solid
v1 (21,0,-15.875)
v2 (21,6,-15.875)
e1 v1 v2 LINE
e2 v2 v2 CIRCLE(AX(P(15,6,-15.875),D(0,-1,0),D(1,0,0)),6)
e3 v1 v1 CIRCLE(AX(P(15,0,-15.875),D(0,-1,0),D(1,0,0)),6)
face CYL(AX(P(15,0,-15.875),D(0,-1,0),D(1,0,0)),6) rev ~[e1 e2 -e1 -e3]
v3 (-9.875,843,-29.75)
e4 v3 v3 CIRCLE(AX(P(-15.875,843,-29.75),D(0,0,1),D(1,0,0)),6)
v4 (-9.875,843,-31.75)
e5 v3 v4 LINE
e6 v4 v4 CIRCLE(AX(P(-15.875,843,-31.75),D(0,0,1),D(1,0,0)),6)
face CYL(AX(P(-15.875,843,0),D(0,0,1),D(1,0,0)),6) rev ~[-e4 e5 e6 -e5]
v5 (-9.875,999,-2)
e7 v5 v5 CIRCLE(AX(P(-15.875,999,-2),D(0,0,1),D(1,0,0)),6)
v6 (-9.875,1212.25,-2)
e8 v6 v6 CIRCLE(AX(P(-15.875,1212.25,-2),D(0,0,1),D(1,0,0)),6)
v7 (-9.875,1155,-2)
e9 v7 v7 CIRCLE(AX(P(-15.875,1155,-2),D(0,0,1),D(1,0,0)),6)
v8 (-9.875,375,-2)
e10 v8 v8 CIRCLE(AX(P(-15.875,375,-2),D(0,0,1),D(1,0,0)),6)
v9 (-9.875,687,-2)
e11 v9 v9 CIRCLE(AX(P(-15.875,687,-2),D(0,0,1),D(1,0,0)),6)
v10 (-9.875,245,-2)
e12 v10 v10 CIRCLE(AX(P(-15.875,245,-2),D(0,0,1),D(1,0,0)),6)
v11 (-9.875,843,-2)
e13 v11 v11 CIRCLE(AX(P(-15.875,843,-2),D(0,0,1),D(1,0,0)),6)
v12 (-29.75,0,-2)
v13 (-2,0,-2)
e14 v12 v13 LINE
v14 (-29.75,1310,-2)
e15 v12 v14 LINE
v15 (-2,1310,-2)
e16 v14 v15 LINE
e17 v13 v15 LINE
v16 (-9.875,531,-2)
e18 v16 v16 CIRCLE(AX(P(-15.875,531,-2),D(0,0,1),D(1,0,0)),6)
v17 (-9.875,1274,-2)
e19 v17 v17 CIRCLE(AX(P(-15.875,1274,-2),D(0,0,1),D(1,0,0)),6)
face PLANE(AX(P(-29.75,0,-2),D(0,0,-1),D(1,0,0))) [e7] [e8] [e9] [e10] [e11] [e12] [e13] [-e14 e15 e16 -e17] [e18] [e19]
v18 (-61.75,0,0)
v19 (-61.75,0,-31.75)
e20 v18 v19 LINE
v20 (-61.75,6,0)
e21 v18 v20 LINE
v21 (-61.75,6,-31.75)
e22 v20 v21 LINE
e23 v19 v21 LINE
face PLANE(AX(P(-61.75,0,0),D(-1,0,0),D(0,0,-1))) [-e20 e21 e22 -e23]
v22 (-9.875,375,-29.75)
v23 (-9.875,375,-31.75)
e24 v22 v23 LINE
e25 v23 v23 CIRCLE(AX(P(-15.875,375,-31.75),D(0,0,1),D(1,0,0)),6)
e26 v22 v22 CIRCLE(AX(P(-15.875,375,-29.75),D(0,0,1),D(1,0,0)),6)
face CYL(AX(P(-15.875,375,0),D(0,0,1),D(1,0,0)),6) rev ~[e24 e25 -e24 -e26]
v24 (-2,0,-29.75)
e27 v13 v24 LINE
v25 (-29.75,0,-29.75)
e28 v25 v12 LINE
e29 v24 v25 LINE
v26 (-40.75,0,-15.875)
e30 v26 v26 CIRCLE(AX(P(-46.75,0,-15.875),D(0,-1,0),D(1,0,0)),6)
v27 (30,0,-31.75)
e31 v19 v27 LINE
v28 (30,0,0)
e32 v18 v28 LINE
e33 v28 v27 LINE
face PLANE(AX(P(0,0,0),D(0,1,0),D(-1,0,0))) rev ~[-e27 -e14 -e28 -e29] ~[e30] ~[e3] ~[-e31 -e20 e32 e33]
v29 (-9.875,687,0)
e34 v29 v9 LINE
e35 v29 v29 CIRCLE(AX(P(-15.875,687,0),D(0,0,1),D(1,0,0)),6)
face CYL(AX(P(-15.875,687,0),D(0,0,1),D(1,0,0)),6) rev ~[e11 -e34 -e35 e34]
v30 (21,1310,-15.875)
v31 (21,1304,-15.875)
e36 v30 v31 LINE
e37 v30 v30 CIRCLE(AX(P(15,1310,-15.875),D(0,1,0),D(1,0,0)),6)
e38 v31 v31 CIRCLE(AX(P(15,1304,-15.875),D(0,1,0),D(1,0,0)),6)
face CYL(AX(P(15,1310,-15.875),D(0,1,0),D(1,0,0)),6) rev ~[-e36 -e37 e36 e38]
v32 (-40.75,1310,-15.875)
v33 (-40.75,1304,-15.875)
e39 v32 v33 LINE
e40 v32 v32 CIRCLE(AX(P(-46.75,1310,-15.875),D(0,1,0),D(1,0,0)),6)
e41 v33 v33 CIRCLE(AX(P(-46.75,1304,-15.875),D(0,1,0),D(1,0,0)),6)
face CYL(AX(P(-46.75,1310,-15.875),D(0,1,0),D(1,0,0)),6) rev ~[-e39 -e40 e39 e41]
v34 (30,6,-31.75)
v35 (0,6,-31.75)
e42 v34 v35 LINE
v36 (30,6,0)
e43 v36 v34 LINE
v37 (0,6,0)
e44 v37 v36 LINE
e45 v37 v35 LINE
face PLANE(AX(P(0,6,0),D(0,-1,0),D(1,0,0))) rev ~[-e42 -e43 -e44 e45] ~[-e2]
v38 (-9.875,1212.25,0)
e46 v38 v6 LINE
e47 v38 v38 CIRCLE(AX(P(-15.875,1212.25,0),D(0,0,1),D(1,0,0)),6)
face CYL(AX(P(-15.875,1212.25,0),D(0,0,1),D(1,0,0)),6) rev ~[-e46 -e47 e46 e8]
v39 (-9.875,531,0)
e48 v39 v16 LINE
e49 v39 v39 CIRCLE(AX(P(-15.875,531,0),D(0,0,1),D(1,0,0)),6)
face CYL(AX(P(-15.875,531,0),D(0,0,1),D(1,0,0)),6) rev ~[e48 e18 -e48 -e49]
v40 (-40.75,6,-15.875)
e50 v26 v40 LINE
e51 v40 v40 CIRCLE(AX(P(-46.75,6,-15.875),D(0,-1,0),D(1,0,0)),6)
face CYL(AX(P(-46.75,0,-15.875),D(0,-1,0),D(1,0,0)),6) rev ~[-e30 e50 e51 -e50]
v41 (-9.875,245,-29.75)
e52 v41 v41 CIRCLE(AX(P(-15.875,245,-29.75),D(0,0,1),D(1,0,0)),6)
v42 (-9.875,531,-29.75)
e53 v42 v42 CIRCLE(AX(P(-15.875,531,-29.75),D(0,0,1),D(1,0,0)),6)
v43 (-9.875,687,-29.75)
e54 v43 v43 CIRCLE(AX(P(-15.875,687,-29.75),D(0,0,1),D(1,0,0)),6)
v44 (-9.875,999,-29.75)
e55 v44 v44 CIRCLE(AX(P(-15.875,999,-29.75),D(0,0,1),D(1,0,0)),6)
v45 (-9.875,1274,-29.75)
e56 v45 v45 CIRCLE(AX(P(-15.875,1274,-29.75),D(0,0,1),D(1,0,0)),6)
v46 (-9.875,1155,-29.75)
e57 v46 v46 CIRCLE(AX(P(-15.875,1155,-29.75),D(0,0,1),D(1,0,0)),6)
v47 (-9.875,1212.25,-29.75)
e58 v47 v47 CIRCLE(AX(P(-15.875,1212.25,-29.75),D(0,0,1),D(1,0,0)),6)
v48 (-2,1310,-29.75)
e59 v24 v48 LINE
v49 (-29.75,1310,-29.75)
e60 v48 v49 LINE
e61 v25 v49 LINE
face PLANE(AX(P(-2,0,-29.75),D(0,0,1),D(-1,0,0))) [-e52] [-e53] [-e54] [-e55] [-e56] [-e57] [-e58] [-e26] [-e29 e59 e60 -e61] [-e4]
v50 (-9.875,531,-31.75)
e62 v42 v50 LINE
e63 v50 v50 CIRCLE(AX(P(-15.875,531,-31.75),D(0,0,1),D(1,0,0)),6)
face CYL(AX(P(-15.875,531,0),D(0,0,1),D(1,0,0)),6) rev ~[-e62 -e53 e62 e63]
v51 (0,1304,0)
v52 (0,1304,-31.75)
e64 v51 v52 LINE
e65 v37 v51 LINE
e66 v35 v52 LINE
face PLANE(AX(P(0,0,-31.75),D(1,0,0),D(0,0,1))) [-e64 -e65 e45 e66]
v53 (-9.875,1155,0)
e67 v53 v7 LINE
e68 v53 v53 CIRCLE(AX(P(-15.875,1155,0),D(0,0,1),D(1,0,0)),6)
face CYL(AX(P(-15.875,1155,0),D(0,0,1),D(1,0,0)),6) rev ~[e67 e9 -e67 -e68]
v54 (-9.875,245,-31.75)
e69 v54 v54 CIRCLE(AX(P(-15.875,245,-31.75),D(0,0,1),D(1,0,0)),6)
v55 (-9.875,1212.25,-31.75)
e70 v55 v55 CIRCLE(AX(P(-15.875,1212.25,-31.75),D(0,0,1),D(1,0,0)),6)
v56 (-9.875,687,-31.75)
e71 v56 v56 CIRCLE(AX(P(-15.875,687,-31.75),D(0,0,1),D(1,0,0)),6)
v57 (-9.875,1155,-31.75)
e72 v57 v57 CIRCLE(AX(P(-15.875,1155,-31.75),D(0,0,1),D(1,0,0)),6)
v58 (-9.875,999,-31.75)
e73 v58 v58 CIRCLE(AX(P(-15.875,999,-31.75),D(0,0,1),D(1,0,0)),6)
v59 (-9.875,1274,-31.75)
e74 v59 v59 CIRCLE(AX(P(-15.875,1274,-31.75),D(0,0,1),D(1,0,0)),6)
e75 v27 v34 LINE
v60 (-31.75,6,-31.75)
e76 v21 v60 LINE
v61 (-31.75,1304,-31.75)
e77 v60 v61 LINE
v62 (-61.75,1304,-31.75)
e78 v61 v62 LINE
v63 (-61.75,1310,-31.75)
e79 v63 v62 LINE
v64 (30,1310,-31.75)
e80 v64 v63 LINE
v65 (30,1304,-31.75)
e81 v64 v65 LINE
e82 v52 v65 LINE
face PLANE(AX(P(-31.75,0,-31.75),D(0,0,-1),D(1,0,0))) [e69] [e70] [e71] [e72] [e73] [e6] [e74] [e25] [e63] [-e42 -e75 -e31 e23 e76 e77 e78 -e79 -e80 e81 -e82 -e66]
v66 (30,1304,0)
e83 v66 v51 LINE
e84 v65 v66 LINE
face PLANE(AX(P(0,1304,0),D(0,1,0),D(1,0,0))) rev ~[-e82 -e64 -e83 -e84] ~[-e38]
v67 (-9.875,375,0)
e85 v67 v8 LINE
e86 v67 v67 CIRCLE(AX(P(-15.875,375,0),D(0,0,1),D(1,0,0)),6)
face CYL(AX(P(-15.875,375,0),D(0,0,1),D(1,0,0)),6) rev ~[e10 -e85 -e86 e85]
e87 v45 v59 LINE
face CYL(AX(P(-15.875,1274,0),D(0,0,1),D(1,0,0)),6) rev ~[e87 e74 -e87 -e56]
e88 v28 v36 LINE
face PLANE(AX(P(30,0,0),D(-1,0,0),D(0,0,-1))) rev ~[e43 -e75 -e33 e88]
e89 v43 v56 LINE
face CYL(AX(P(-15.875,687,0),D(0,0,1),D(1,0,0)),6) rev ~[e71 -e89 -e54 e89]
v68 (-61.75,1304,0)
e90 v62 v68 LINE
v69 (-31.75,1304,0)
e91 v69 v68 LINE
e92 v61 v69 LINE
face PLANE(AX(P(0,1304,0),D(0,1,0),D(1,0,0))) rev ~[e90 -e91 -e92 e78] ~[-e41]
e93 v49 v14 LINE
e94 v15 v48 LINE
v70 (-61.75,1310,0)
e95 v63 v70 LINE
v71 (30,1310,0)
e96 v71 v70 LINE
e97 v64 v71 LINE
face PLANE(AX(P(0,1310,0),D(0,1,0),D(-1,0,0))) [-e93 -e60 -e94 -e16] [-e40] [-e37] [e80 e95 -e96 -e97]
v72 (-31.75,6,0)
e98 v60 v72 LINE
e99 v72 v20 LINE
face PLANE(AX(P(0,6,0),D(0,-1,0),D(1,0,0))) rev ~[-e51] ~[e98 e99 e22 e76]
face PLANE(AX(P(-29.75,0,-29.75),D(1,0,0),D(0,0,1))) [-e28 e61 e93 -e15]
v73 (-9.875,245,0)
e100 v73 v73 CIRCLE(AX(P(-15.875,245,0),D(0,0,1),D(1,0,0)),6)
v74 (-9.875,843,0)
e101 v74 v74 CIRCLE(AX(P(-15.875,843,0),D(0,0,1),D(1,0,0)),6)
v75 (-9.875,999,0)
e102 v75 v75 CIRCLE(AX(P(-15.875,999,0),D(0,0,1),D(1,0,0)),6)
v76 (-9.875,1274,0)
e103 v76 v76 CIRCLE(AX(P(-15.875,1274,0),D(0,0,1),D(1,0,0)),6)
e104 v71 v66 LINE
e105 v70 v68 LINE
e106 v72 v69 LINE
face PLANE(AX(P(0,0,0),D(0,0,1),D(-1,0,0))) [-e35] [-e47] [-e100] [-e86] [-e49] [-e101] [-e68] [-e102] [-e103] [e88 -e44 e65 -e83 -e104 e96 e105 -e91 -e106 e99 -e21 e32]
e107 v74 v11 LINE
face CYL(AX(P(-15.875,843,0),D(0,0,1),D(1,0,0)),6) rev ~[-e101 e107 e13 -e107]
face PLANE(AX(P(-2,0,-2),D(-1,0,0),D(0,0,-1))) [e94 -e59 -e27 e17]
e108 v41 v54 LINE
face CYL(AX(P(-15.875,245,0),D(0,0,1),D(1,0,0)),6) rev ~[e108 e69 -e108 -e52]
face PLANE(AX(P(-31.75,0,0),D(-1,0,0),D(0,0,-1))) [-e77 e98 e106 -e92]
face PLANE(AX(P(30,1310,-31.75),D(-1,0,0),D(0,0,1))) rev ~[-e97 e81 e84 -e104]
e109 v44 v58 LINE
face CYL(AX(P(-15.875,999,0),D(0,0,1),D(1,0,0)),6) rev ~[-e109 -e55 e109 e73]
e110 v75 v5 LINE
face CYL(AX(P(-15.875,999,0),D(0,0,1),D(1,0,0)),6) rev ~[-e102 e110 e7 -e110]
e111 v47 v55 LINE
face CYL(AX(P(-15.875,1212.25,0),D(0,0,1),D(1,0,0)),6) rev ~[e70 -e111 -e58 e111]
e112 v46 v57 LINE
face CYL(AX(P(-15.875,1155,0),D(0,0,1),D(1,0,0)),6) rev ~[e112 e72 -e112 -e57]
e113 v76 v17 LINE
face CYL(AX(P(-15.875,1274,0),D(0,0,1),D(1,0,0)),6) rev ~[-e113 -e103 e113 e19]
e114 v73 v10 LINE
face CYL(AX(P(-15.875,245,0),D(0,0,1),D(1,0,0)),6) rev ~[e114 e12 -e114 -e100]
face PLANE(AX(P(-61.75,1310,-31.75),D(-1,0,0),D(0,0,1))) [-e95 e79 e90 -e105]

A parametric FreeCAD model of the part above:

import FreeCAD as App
import Part
import Sketcher
Q = App.Units.Quantity

doc = App.newDocument("Part")
body = doc.addObject("PartDesign::Body", "Body")

sketch1 = body.newObject("Sketcher::SketchObject", "Sketch")
sketch1.AttachmentSupport = (doc.getObject("XZ_Plane"), [""])
sketch1.MapMode = "FlatFace"
sketch1.addGeometry([
    Part.LineSegment(App.Vector(-32, 0, 0), App.Vector(0, 0, 0)),
    Part.LineSegment(App.Vector(0, 0, 0), App.Vector(0, -32, 0)),
    Part.LineSegment(App.Vector(0, -32, 0), App.Vector(-32, -32, 0)),
    Part.LineSegment(App.Vector(-32, -32, 0), App.Vector(-32, 0, 0)),
    Part.LineSegment(App.Vector(-30, -2, 0), App.Vector(-30, -30, 0)),
    Part.LineSegment(App.Vector(-30, -30, 0), App.Vector(-2, -30, 0)),
    Part.LineSegment(App.Vector(-2, -30, 0), App.Vector(-2, -2, 0)),
    Part.LineSegment(App.Vector(-2, -2, 0), App.Vector(-30, -2, 0)),
], False)
sketch1.addConstraint([
    Sketcher.Constraint("Coincident", 0, 2, 1, 1),
    Sketcher.Constraint("Coincident", 1, 2, 2, 1),
    Sketcher.Constraint("Coincident", 2, 2, 3, 1),
    Sketcher.Constraint("Coincident", 3, 2, 0, 1),
    Sketcher.Constraint("Coincident", 4, 2, 5, 1),
    Sketcher.Constraint("Coincident", 5, 2, 6, 1),
    Sketcher.Constraint("Coincident", 6, 2, 7, 1),
    Sketcher.Constraint("Coincident", 7, 2, 4, 1),
    Sketcher.Constraint("Horizontal", 0),
    Sketcher.Constraint("Vertical", 1),
    Sketcher.Constraint("Horizontal", 2),
    Sketcher.Constraint("Vertical", 3),
    Sketcher.Constraint("Vertical", 4),
    Sketcher.Constraint("Horizontal", 5),
    Sketcher.Constraint("Vertical", 6),
    Sketcher.Constraint("Horizontal", 7),
    Sketcher.Constraint("Coincident", 0, 2, -1, 1),
    Sketcher.Constraint("Equal", 2, 1),
    Sketcher.Constraint("Equal", 7, 4),
    Sketcher.Constraint("DistanceX", 5, 2, -1, 1, Q("2 mm")),
    Sketcher.Constraint("DistanceY", 6, 2, -1, 1, Q("2 mm")),
    Sketcher.Constraint("DistanceX", 2, 2, 4, 2, Q("2 mm")),
    Sketcher.Constraint("DistanceX", 0, 1, 0, 2, Q("31.75 mm")),
])
pad1 = body.newObject("PartDesign::Pad", "Pad")
pad1.Profile = sketch1
pad1.Length = 1310
pad1.Reversed = True

sketch2 = body.newObject("Sketcher::SketchObject", "Sketch001")
sketch2.AttachmentSupport = (doc.getObject("XY_Plane"), [""])
sketch2.MapMode = "FlatFace"
sketch2.addGeometry([
    Part.Circle(App.Vector(-16, 375, 0), App.Vector(0, 0, 1), 6),
    Part.Circle(App.Vector(-16, 531, 0), App.Vector(0, 0, 1), 6),
    Part.Circle(App.Vector(-16, 687, 0), App.Vector(0, 0, 1), 6),
    Part.Circle(App.Vector(-16, 843, 0), App.Vector(0, 0, 1), 6),
    Part.Circle(App.Vector(-16, 999, 0), App.Vector(0, 0, 1), 6),
    Part.Circle(App.Vector(-16, 1155, 0), App.Vector(0, 0, 1), 6),
], False)
sketch2.addConstraint([
    Sketcher.Constraint("Equal", 0, 1),
    Sketcher.Constraint("Equal", 1, 2),
    Sketcher.Constraint("Equal", 2, 3),
    Sketcher.Constraint("Equal", 3, 4),
    Sketcher.Constraint("Equal", 4, 5),
    Sketcher.Constraint("Vertical", 0, 3, 1, 3),
    Sketcher.Constraint("Vertical", 1, 3, 2, 3),
    Sketcher.Constraint("Vertical", 2, 3, 3, 3),
    Sketcher.Constraint("Vertical", 3, 3, 4, 3),
    Sketcher.Constraint("Vertical", 4, 3, 5, 3),
    Sketcher.Constraint("Diameter", 0, Q("12 mm")),
    Sketcher.Constraint("DistanceY", 0, 3, 1, 3, Q("156 mm")),
    Sketcher.Constraint("DistanceY", 1, 3, 2, 3, Q("156 mm")),
    Sketcher.Constraint("DistanceY", 2, 3, 3, 3, Q("156 mm")),
    Sketcher.Constraint("DistanceY", 3, 3, 4, 3, Q("156 mm")),
    Sketcher.Constraint("DistanceY", 4, 3, 5, 3, Q("156 mm")),
    Sketcher.Constraint("DistanceY", -1, 1, 0, 3, Q("375 mm")),
    Sketcher.Constraint("DistanceX", 0, 3, -1, 1, Q("15.875 mm")),
])
pocket1 = body.newObject("PartDesign::Pocket", "Pocket")
pocket1.Profile = sketch2
pocket1.Type = "ThroughAll"

sketch3 = body.newObject("Sketcher::SketchObject", "Sketch002")
sketch3.AttachmentSupport = (doc.getObject("XZ_Plane"), [""])
sketch3.MapMode = "FlatFace"
sketch3.addGeometry([
    Part.LineSegment(App.Vector(0, 0, 0), App.Vector(0, -32, 0)),
    Part.LineSegment(App.Vector(0, -32, 0), App.Vector(30, -32, 0)),
    Part.LineSegment(App.Vector(30, -32, 0), App.Vector(30, 0, 0)),
    Part.LineSegment(App.Vector(30, 0, 0), App.Vector(0, 0, 0)),
    Part.Circle(App.Vector(15, -16, 0), App.Vector(0, 0, 1), 6),
    Part.LineSegment(App.Vector(-62, -32, 0), App.Vector(-32, -32, 0)),
    Part.LineSegment(App.Vector(-32, -32, 0), App.Vector(-32, 0, 0)),
    Part.LineSegment(App.Vector(-32, 0, 0), App.Vector(-62, 0, 0)),
    Part.LineSegment(App.Vector(-62, 0, 0), App.Vector(-62, -32, 0)),
    Part.Circle(App.Vector(-47, -16, 0), App.Vector(0, 0, 1), 6),
], False)
sketch3.addConstraint([
    Sketcher.Constraint("Coincident", 0, 2, 1, 1),
    Sketcher.Constraint("Coincident", 1, 2, 2, 1),
    Sketcher.Constraint("Coincident", 2, 2, 3, 1),
    Sketcher.Constraint("Coincident", 3, 2, 0, 1),
    Sketcher.Constraint("Coincident", 5, 2, 6, 1),
    Sketcher.Constraint("Coincident", 6, 2, 7, 1),
    Sketcher.Constraint("Coincident", 7, 2, 8, 1),
    Sketcher.Constraint("Coincident", 8, 2, 5, 1),
    Sketcher.Constraint("Vertical", 0),
    Sketcher.Constraint("Horizontal", 1),
    Sketcher.Constraint("Vertical", 2),
    Sketcher.Constraint("Horizontal", 3),
    Sketcher.Constraint("Horizontal", 5),
    Sketcher.Constraint("Vertical", 6),
    Sketcher.Constraint("Horizontal", 7),
    Sketcher.Constraint("Vertical", 8),
    Sketcher.Constraint("Coincident", 3, 2, -1, 1),
    Sketcher.Constraint("Equal", 4, 9),
    Sketcher.Constraint("PointOnObject", 6, 2, -1),
    Sketcher.Constraint("Horizontal", 4, 3, 9, 3),
    Sketcher.Constraint("Horizontal", 1, 2, 5, 2),
    Sketcher.Constraint("Equal", 3, 5),
    Sketcher.Constraint("Diameter", 4, Q("12 mm")),
    Sketcher.Constraint("DistanceX", 1, 1, 1, 2, Q("30 mm")),
    Sketcher.Constraint("DistanceX", -1, 1, 4, 3, Q("15 mm")),
    Sketcher.Constraint("DistanceX", 9, 3, 5, 2, Q("15 mm")),
    Sketcher.Constraint("DistanceY", 0, 2, 0, 1, Q("31.75 mm")),
    Sketcher.Constraint("DistanceX", 9, 3, -1, 1, Q("46.75 mm")),
    Sketcher.Constraint("DistanceY", 4, 3, -1, 1, Q("15.875 mm")),
])
pad2 = body.newObject("PartDesign::Pad", "Pad001")
pad2.Profile = sketch3
pad2.Length = 6
pad2.Reversed = True

sketch4 = body.newObject("Sketcher::SketchObject", "Sketch003")
sketch4.AttachmentSupport = (doc.getObject("XZ_Plane"), [""])
sketch4.MapMode = "FlatFace"
sketch4.AttachmentOffset = App.Placement(App.Vector(0, 0, -1310), App.Rotation())
sketch4.addGeometry([
    Part.LineSegment(App.Vector(30, -32, 0), App.Vector(0, -32, 0)),
    Part.LineSegment(App.Vector(0, -32, 0), App.Vector(0, 0, 0)),
    Part.LineSegment(App.Vector(0, 0, 0), App.Vector(30, 0, 0)),
    Part.LineSegment(App.Vector(30, 0, 0), App.Vector(30, -32, 0)),
    Part.Circle(App.Vector(15, -16, 0), App.Vector(0, 0, 1), 6),
    Part.LineSegment(App.Vector(-32, 0, 0), App.Vector(-32, -32, 0)),
    Part.LineSegment(App.Vector(-32, -32, 0), App.Vector(-62, -32, 0)),
    Part.LineSegment(App.Vector(-62, -32, 0), App.Vector(-62, 0, 0)),
    Part.LineSegment(App.Vector(-62, 0, 0), App.Vector(-32, 0, 0)),
    Part.Circle(App.Vector(-47, -16, 0), App.Vector(0, 0, 1), 6),
], False)
sketch4.addConstraint([
    Sketcher.Constraint("Coincident", 0, 2, 1, 1),
    Sketcher.Constraint("Coincident", 1, 2, 2, 1),
    Sketcher.Constraint("Coincident", 2, 2, 3, 1),
    Sketcher.Constraint("Coincident", 3, 2, 0, 1),
    Sketcher.Constraint("Coincident", 5, 2, 6, 1),
    Sketcher.Constraint("Coincident", 6, 2, 7, 1),
    Sketcher.Constraint("Coincident", 7, 2, 8, 1),
    Sketcher.Constraint("Coincident", 8, 2, 5, 1),
    Sketcher.Constraint("Horizontal", 0),
    Sketcher.Constraint("Vertical", 1),
    Sketcher.Constraint("Horizontal", 2),
    Sketcher.Constraint("Vertical", 3),
    Sketcher.Constraint("Vertical", 5),
    Sketcher.Constraint("Horizontal", 6),
    Sketcher.Constraint("Vertical", 7),
    Sketcher.Constraint("Horizontal", 8),
    Sketcher.Constraint("Coincident", 1, 2, -1, 1),
    Sketcher.Constraint("Equal", 4, 9),
    Sketcher.Constraint("PointOnObject", 7, 2, -1),
    Sketcher.Constraint("Horizontal", 4, 3, 9, 3),
    Sketcher.Constraint("Horizontal", 3, 2, 5, 2),
    Sketcher.Constraint("Equal", 2, 6),
    Sketcher.Constraint("Diameter", 4, Q("12 mm")),
    Sketcher.Constraint("DistanceX", 0, 2, 0, 1, Q("30 mm")),
    Sketcher.Constraint("DistanceX", -1, 1, 4, 3, Q("15 mm")),
    Sketcher.Constraint("DistanceX", 9, 3, 5, 2, Q("15 mm")),
    Sketcher.Constraint("DistanceY", 1, 1, 1, 2, Q("31.75 mm")),
    Sketcher.Constraint("DistanceX", 9, 3, -1, 1, Q("46.75 mm")),
    Sketcher.Constraint("DistanceY", 4, 3, -1, 1, Q("15.875 mm")),
])
pad3 = body.newObject("PartDesign::Pad", "Pad002")
pad3.Profile = sketch4
pad3.Length = 6

sketch5 = body.newObject("Sketcher::SketchObject", "Sketch004")
sketch5.AttachmentSupport = (doc.getObject("XY_Plane"), [""])
sketch5.MapMode = "FlatFace"
sketch5.addGeometry([
    Part.Circle(App.Vector(-16, 1274, 0), App.Vector(0, 0, 1), 6),
    Part.Circle(App.Vector(-16, 1212, 0), App.Vector(0, 0, 1), 6),
], False)
sketch5.addConstraint([
    Sketcher.Constraint("Equal", 0, 1),
    Sketcher.Constraint("Vertical", 0, 3, 1, 3),
    Sketcher.Constraint("Diameter", 0, Q("12 mm")),
    Sketcher.Constraint("DistanceY", 1, 3, 0, 3, Q("61.75 mm")),
    Sketcher.Constraint("DistanceY", -1, 1, 0, 3, Q("1274 mm")),
    Sketcher.Constraint("DistanceX", 0, 3, -1, 1, Q("15.875 mm")),
])
pocket2 = body.newObject("PartDesign::Pocket", "Pocket001")
pocket2.Profile = sketch5
pocket2.Type = "ThroughAll"

sketch6 = body.newObject("Sketcher::SketchObject", "Sketch005")
sketch6.AttachmentSupport = (doc.getObject("XY_Plane"), [""])
sketch6.MapMode = "FlatFace"
sketch6.addGeometry(Part.Circle(App.Vector(-16, 245, 0), App.Vector(0, 0, 1), 6), False)
sketch6.addConstraint([
    Sketcher.Constraint("Diameter", 0, Q("12 mm")),
    Sketcher.Constraint("DistanceY", -1, 1, 0, 3, Q("245 mm")),
    Sketcher.Constraint("DistanceX", 0, 3, -1, 1, Q("15.875 mm")),
])
pocket3 = body.newObject("PartDesign::Pocket", "Pocket002")
pocket3.Profile = sketch6
pocket3.Type = "ThroughAll"

doc.recompute()
